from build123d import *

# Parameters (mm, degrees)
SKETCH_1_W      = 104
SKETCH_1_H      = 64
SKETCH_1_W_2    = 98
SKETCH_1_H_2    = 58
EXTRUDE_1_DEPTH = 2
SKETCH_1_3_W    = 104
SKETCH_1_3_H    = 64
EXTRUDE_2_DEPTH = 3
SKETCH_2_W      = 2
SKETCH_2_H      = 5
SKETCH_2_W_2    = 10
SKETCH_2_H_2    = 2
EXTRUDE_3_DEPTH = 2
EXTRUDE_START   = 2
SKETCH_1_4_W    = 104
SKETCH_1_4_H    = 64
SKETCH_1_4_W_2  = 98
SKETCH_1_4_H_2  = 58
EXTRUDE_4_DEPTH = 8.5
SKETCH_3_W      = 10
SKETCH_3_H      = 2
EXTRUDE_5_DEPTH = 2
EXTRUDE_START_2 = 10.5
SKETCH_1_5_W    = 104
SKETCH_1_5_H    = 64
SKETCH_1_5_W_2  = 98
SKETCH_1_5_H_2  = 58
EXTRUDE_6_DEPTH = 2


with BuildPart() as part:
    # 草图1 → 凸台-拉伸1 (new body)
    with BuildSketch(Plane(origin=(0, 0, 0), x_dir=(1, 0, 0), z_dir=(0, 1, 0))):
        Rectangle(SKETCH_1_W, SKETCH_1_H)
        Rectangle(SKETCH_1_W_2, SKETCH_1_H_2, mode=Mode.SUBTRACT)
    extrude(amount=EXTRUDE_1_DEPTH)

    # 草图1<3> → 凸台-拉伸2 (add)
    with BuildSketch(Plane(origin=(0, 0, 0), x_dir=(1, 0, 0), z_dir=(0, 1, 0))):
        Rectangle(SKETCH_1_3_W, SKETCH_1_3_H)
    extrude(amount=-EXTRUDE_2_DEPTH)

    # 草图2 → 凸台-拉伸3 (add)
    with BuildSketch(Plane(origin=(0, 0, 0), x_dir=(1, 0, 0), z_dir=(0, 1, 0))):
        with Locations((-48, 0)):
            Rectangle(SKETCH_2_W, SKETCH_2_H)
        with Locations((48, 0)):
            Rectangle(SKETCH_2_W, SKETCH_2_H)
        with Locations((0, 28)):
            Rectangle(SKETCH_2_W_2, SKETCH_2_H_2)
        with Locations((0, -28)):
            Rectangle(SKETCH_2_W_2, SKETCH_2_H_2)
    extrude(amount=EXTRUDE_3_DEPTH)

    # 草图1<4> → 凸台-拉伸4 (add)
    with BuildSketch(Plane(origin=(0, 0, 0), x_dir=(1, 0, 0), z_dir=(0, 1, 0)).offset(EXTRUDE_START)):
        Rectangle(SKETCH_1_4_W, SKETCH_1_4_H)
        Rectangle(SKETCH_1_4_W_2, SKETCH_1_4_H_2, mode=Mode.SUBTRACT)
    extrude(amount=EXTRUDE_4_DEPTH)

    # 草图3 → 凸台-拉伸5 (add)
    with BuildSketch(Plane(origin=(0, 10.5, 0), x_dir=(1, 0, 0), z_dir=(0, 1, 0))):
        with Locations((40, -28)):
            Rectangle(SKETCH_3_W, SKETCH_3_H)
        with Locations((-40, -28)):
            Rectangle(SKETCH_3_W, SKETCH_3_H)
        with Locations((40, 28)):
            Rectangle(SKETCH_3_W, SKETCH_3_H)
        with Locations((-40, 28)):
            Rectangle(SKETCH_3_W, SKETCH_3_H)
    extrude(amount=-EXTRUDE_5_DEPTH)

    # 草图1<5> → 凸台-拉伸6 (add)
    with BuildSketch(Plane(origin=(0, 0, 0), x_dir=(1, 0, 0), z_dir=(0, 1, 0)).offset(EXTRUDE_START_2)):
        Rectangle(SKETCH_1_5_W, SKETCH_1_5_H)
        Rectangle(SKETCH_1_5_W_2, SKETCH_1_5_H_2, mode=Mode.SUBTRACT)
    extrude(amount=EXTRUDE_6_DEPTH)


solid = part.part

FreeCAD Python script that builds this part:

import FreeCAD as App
import Part
import Sketcher
from FreeCAD import Vector


def add_polygon(sketch, points):
    """Adds a closed chain of lines whose ends are joined by coincident constraints."""
    first, n = sketch.GeometryCount, len(points)
    for a, b in zip(points, points[1:] + points[:1]):
        sketch.addGeometry(Part.LineSegment(App.Vector(*a, 0), App.Vector(*b, 0)), False)
    for i in range(n):
        sketch.addConstraint(Sketcher.Constraint("Coincident", first + i, 2, first + (i + 1) % n, 1))

doc = App.newDocument("Part")
params = doc.addObject("Spreadsheet::Sheet", "Params")
for row, (alias, value) in enumerate([
    ("sketch1_width", "104 mm"),
    ("sketch1_width2", "98 mm"),
    ("sketch1_height", "64 mm"),
    ("sketch1_height2", "58 mm"),
    ("pad1_length", "2 mm"),
    ("sketch2_width", "104 mm"),
    ("sketch2_height", "64 mm"),
    ("pad2_length", "3 mm"),
    ("sketch3_width", "2 mm"),
    ("sketch3_width2", "10 mm"),
    ("sketch3_height", "5 mm"),
    ("pad3_length", "2 mm"),
    ("sketch4_width", "104 mm"),
    ("sketch4_width2", "98 mm"),
    ("sketch4_height", "64 mm"),
    ("sketch4_height2", "58 mm"),
    ("pad4_length", "8.5 mm"),
    ("sketch5_width", "10 mm"),
    ("sketch5_height", "2 mm"),
    ("pad5_length", "2 mm"),
    ("sketch6_width", "104 mm"),
    ("sketch6_width2", "98 mm"),
    ("sketch6_height", "64 mm"),
    ("sketch6_height2", "58 mm"),
    ("pad6_length", "2 mm"),
], start=1):
    params.set(f"A{row}", alias)
    params.set(f"B{row}", "=" + value)
    params.setAlias(f"B{row}", alias)

body = doc.addObject("PartDesign::Body", "Body")

sketch1 = body.newObject("Sketcher::SketchObject", "Sketch")
sketch1.AttachmentSupport = (doc.getObject("XZ_Plane"), [""])
sketch1.MapMode = "FlatFace"
add_polygon(sketch1, [(-52, -32), (-52, 32), (52, 32), (52, -32)])
add_polygon(sketch1, [(49, 29), (-49, 29), (-49, -29), (49, -29)])
sketch1.addConstraint([
    Sketcher.Constraint("Vertical", 0),
    Sketcher.Constraint("Horizontal", 1),
    Sketcher.Constraint("Vertical", 2),
    Sketcher.Constraint("Horizontal", 3),
    Sketcher.Constraint("Horizontal", 4),
    Sketcher.Constraint("Vertical", 5),
    Sketcher.Constraint("Horizontal", 6),
    Sketcher.Constraint("Vertical", 7),
    Sketcher.Constraint("Symmetric", 0, 2, 2, 2, -1, 1),
    Sketcher.Constraint("Symmetric", 4, 2, 6, 2, -1, 1),
    Sketcher.Constraint("DistanceX", 1, 1, 1, 2, 104.0),
    Sketcher.Constraint("DistanceX", 4, 2, 4, 1, 98.0),
    Sketcher.Constraint("DistanceY", 0, 1, 0, 2, 64.0),
    Sketcher.Constraint("DistanceY", 5, 2, 5, 1, 58.0),
])
sketch1.setExpression("Constraints[18]", "Params.sketch1_width")
sketch1.setExpression("Constraints[19]", "Params.sketch1_width2")
sketch1.setExpression("Constraints[20]", "Params.sketch1_height")
sketch1.setExpression("Constraints[21]", "Params.sketch1_height2")
pad1 = body.newObject("PartDesign::Pad", "Pad")
pad1.Profile = sketch1
pad1.setExpression("Length", "Params.pad1_length")
pad1.Reversed = True

sketch2 = body.newObject("Sketcher::SketchObject", "Sketch001")
sketch2.AttachmentSupport = (doc.getObject("XZ_Plane"), [""])
sketch2.MapMode = "FlatFace"
add_polygon(sketch2, [(-52, -32), (-52, 32), (52, 32), (52, -32)])
sketch2.addConstraint([
    Sketcher.Constraint("Vertical", 0),
    Sketcher.Constraint("Horizontal", 1),
    Sketcher.Constraint("Vertical", 2),
    Sketcher.Constraint("Horizontal", 3),
    Sketcher.Constraint("Symmetric", 0, 2, 2, 2, -1, 1),
    Sketcher.Constraint("DistanceX", 1, 1, 1, 2, 104.0),
    Sketcher.Constraint("DistanceY", 0, 1, 0, 2, 64.0),
])
sketch2.setExpression("Constraints[9]", "Params.sketch2_width")
sketch2.setExpression("Constraints[10]", "Params.sketch2_height")
pad2 = body.newObject("PartDesign::Pad", "Pad001")
pad2.Profile = sketch2
pad2.setExpression("Length", "Params.pad2_length")

sketch3 = body.newObject("Sketcher::SketchObject", "Sketch002")
sketch3.AttachmentSupport = (doc.getObject("XZ_Plane"), [""])
sketch3.MapMode = "FlatFace"
add_polygon(sketch3, [(-49, -2.5), (-49, 2.5), (-47, 2.5), (-47, -2.5)])
add_polygon(sketch3, [(47, -2.5), (47, 2.5), (49, 2.5), (49, -2.5)])
add_polygon(sketch3, [(-5, -29), (-5, -27), (5, -27), (5, -29)])
add_polygon(sketch3, [(-5, 27), (-5, 29), (5, 29), (5, 27)])
sketch3.addConstraint([
    Sketcher.Constraint("Vertical", 0),
    Sketcher.Constraint("Horizontal", 1),
    Sketcher.Constraint("Vertical", 2),
    Sketcher.Constraint("Horizontal", 3),
    Sketcher.Constraint("Vertical", 4),
    Sketcher.Constraint("Horizontal", 5),
    Sketcher.Constraint("Vertical", 6),
    Sketcher.Constraint("Horizontal", 7),
    Sketcher.Constraint("Vertical", 8),
    Sketcher.Constraint("Horizontal", 9),
    Sketcher.Constraint("Vertical", 10),
    Sketcher.Constraint("Horizontal", 11),
    Sketcher.Constraint("Vertical", 12),
    Sketcher.Constraint("Horizontal", 13),
    Sketcher.Constraint("Vertical", 14),
    Sketcher.Constraint("Horizontal", 15),
    Sketcher.Constraint("Symmetric", 2, 2, 4, 2, -1, 1),
    Sketcher.Constraint("Symmetric", 0, 2, 6, 2, -1, 1),
    Sketcher.Constraint("Symmetric", 10, 2, 12, 2, -1, 1),
    Sketcher.Constraint("Symmetric", 8, 2, 14, 2, -1, 1),
    Sketcher.Constraint("Horizontal", 1, 2, 4, 2),
    Sketcher.Constraint("Vertical", 11, 2, 12, 2),
    Sketcher.Constraint("Equal", 7, 8),
    Sketcher.Constraint("DistanceX", 1, 1, 1, 2, 2.0),
    Sketcher.Constraint("DistanceX", 9, 1, 9, 2, 10.0),
    Sketcher.Constraint("DistanceY", 0, 1, 0, 2, 5.0),
    Sketcher.Constraint("DistanceX", 0, 2, -1, 1, 49.0),
    Sketcher.Constraint("DistanceY", 8, 2, -1, 1, 27.0),
])
sketch3.setExpression("Constraints[39]", "Params.sketch3_width")
sketch3.setExpression("Constraints[40]", "Params.sketch3_width2")
sketch3.setExpression("Constraints[41]", "Params.sketch3_height")
pad3 = body.newObject("PartDesign::Pad", "Pad002")
pad3.Profile = sketch3
pad3.setExpression("Length", "Params.pad3_length")
pad3.Reversed = True

sketch4 = body.newObject("Sketcher::SketchObject", "Sketch003")
sketch4.AttachmentSupport = (doc.getObject("XZ_Plane"), [""])
sketch4.MapMode = "FlatFace"
sketch4.AttachmentOffset = App.Placement(Vector(0, 0, -2), App.Rotation())
add_polygon(sketch4, [(-52, -32), (-52, 32), (52, 32), (52, -32)])
add_polygon(sketch4, [(49, 29), (-49, 29), (-49, -29), (49, -29)])
sketch4.addConstraint([
    Sketcher.Constraint("Vertical", 0),
    Sketcher.Constraint("Horizontal", 1),
    Sketcher.Constraint("Vertical", 2),
    Sketcher.Constraint("Horizontal", 3),
    Sketcher.Constraint("Horizontal", 4),
    Sketcher.Constraint("Vertical", 5),
    Sketcher.Constraint("Horizontal", 6),
    Sketcher.Constraint("Vertical", 7),
    Sketcher.Constraint("Symmetric", 0, 2, 2, 2, -1, 1),
    Sketcher.Constraint("Symmetric", 4, 2, 6, 2, -1, 1),
    Sketcher.Constraint("DistanceX", 1, 1, 1, 2, 104.0),
    Sketcher.Constraint("DistanceX", 4, 2, 4, 1, 98.0),
    Sketcher.Constraint("DistanceY", 0, 1, 0, 2, 64.0),
    Sketcher.Constraint("DistanceY", 5, 2, 5, 1, 58.0),
])
sketch4.setExpression("Constraints[18]", "Params.sketch4_width")
sketch4.setExpression("Constraints[19]", "Params.sketch4_width2")
sketch4.setExpression("Constraints[20]", "Params.sketch4_height")
sketch4.setExpression("Constraints[21]", "Params.sketch4_height2")
pad4 = body.newObject("PartDesign::Pad", "Pad003")
pad4.Profile = sketch4
pad4.setExpression("Length", "Params.pad4_length")
pad4.Reversed = True

sketch5 = body.newObject("Sketcher::SketchObject", "Sketch004")
sketch5.AttachmentSupport = (doc.getObject("XZ_Plane"), [""])
sketch5.MapMode = "FlatFace"
sketch5.AttachmentOffset = App.Placement(Vector(0, 0, -10.5), App.Rotation())
add_polygon(sketch5, [(35, 27), (35, 29), (45, 29), (45, 27)])
add_polygon(sketch5, [(-45, 27), (-45, 29), (-35, 29), (-35, 27)])
add_polygon(sketch5, [(35, -29), (35, -27), (45, -27), (45, -29)])
add_polygon(sketch5, [(-45, -29), (-45, -27), (-35, -27), (-35, -29)])
sketch5.addConstraint([
    Sketcher.Constraint("Vertical", 0),
    Sketcher.Constraint("Horizontal", 1),
    Sketcher.Constraint("Vertical", 2),
    Sketcher.Constraint("Horizontal", 3),
    Sketcher.Constraint("Vertical", 4),
    Sketcher.Constraint("Horizontal", 5),
    Sketcher.Constraint("Vertical", 6),
    Sketcher.Constraint("Horizontal", 7),
    Sketcher.Constraint("Vertical", 8),
    Sketcher.Constraint("Horizontal", 9),
    Sketcher.Constraint("Vertical", 10),
    Sketcher.Constraint("Horizontal", 11),
    Sketcher.Constraint("Vertical", 12),
    Sketcher.Constraint("Horizontal", 13),
    Sketcher.Constraint("Vertical", 14),
    Sketcher.Constraint("Horizontal", 15),
    Sketcher.Constraint("Symmetric", 6, 2, 8, 2, -1, 1),
    Sketcher.Constraint("Symmetric", 4, 2, 10, 2, -1, 1),
    Sketcher.Constraint("Symmetric", 2, 2, 12, 2, -1, 1),
    Sketcher.Constraint("Symmetric", 0, 2, 14, 2, -1, 1),
    Sketcher.Constraint("Symmetric", 1, 2, 4, 2, -2),
    Sketcher.Constraint("Symmetric", 3, 2, 6, 2, -2),
    Sketcher.Constraint("DistanceX", 1, 1, 1, 2, 10.0),
    Sketcher.Constraint("DistanceY", 0, 1, 0, 2, 2.0),
    Sketcher.Constraint("DistanceX", -1, 1, 0, 2, 35.0),
    Sketcher.Constraint("DistanceY", -1, 1, 0, 2, 29.0),
])
sketch5.setExpression("Constraints[38]", "Params.sketch5_width")
sketch5.setExpression("Constraints[39]", "Params.sketch5_height")
pad5 = body.newObject("PartDesign::Pad", "Pad004")
pad5.Profile = sketch5
pad5.setExpression("Length", "Params.pad5_length")

sketch6 = body.newObject("Sketcher::SketchObject", "Sketch005")
sketch6.AttachmentSupport = (doc.getObject("XZ_Plane"), [""])
sketch6.MapMode = "FlatFace"
sketch6.AttachmentOffset = App.Placement(Vector(0, 0, -10.5), App.Rotation())
add_polygon(sketch6, [(-52, -32), (-52, 32), (52, 32), (52, -32)])
add_polygon(sketch6, [(49, 29), (-49, 29), (-49, -29), (49, -29)])
sketch6.addConstraint([
    Sketcher.Constraint("Vertical", 0),
    Sketcher.Constraint("Horizontal", 1),
    Sketcher.Constraint("Vertical", 2),
    Sketcher.Constraint("Horizontal", 3),
    Sketcher.Constraint("Horizontal", 4),
    Sketcher.Constraint("Vertical", 5),
    Sketcher.Constraint("Horizontal", 6),
    Sketcher.Constraint("Vertical", 7),
    Sketcher.Constraint("Symmetric", 0, 2, 2, 2, -1, 1),
    Sketcher.Constraint("Symmetric", 4, 2, 6, 2, -1, 1),
    Sketcher.Constraint("DistanceX", 1, 1, 1, 2, 104.0),
    Sketcher.Constraint("DistanceX", 4, 2, 4, 1, 98.0),
    Sketcher.Constraint("DistanceY", 0, 1, 0, 2, 64.0),
    Sketcher.Constraint("DistanceY", 5, 2, 5, 1, 58.0),
])
sketch6.setExpression("Constraints[18]", "Params.sketch6_width")
sketch6.setExpression("Constraints[19]", "Params.sketch6_width2")
sketch6.setExpression("Constraints[20]", "Params.sketch6_height")
sketch6.setExpression("Constraints[21]", "Params.sketch6_height2")
pad6 = body.newObject("PartDesign::Pad", "Pad005")
pad6.Profile = sketch6
pad6.setExpression("Length", "Params.pad6_length")
pad6.Reversed = True

doc.recompute()
